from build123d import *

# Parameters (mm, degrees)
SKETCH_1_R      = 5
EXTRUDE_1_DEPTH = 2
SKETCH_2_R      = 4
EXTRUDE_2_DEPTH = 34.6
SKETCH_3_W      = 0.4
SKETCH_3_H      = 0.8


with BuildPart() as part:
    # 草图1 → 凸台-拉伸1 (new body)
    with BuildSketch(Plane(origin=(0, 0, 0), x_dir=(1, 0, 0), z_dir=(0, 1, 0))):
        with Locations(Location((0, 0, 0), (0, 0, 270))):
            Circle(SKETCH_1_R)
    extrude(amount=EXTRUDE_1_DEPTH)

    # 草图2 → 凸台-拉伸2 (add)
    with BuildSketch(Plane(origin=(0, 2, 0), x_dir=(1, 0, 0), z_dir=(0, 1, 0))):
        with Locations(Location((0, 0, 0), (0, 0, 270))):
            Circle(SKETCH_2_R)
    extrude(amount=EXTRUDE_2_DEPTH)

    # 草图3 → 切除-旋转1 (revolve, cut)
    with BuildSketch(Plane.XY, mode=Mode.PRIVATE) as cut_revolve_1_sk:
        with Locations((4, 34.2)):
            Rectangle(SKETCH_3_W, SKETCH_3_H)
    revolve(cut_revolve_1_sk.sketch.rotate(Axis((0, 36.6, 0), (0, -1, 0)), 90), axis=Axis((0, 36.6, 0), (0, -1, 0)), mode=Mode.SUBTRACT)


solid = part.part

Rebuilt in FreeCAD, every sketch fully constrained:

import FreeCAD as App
import Part
import Sketcher

V = App.Vector

doc = App.newDocument("Part")
body = doc.addObject("PartDesign::Body", "Body")

# Sketch on XZ plane
sketch1 = body.newObject("Sketcher::SketchObject", "Sketch")
sketch1.AttachmentSupport = (doc.getObject("XZ_Plane"), [""])
sketch1.MapMode = "FlatFace"
sketch1.addGeometry(Part.Circle(V(0, 0, 0), V(0, 0, 1), 5), False)
sketch1.addConstraint([
    Sketcher.Constraint("Coincident", 0, 3, -1, 1),
    Sketcher.Constraint("Diameter", 0, 10.0),
])
pad1 = body.newObject("PartDesign::Pad", "Pad")
pad1.Profile = sketch1
pad1.Length = 2
pad1.Reversed = True

# Sketch on XZ plane
sketch2 = body.newObject("Sketcher::SketchObject", "Sketch001")
sketch2.AttachmentSupport = (doc.getObject("XZ_Plane"), [""])
sketch2.MapMode = "FlatFace"
sketch2.AttachmentOffset = App.Placement(V(0, 0, -2), App.Rotation())
sketch2.addGeometry(Part.Circle(V(0, 0, 0), V(0, 0, 1), 4), False)
sketch2.addConstraint([
    Sketcher.Constraint("Coincident", 0, 3, -1, 1),
    Sketcher.Constraint("Diameter", 0, 8.0),
])
pad2 = body.newObject("PartDesign::Pad", "Pad001")
pad2.Profile = sketch2
pad2.Length = 34.6
pad2.Reversed = True

# Sketch on XY plane
sketch3 = body.newObject("Sketcher::SketchObject", "Sketch002")
sketch3.AttachmentSupport = (doc.getObject("XY_Plane"), [""])
sketch3.MapMode = "FlatFace"
sketch3.addGeometry([
    Part.LineSegment(V(3.8, 34.6, 0), V(3.8, 33.8, 0)),
    Part.LineSegment(V(3.8, 33.8, 0), V(4.2, 33.8, 0)),
    Part.LineSegment(V(4.2, 33.8, 0), V(4.2, 34.6, 0)),
    Part.LineSegment(V(4.2, 34.6, 0), V(3.8, 34.6, 0)),
], False)
sketch3.addConstraint([
    Sketcher.Constraint("Coincident", 0, 2, 1, 1),
    Sketcher.Constraint("Coincident", 1, 2, 2, 1),
    Sketcher.Constraint("Coincident", 2, 2, 3, 1),
    Sketcher.Constraint("Coincident", 3, 2, 0, 1),
    Sketcher.Constraint("Vertical", 0),
    Sketcher.Constraint("Horizontal", 1),
    Sketcher.Constraint("Vertical", 2),
    Sketcher.Constraint("Horizontal", 3),
    Sketcher.Constraint("DistanceX", 1, 1, 1, 2, 0.4),
    Sketcher.Constraint("DistanceY", 0, 2, 0, 1, 0.8),
    Sketcher.Constraint("DistanceX", -1, 1, 0, 2, 3.8),
    Sketcher.Constraint("DistanceY", -1, 1, 0, 2, 33.8),
])
groove = body.newObject("PartDesign::Groove", "Groove")
groove.Profile = sketch3
groove.ReferenceAxis = (sketch3, ["V_Axis"])
groove.Angle = 360

doc.recompute()
